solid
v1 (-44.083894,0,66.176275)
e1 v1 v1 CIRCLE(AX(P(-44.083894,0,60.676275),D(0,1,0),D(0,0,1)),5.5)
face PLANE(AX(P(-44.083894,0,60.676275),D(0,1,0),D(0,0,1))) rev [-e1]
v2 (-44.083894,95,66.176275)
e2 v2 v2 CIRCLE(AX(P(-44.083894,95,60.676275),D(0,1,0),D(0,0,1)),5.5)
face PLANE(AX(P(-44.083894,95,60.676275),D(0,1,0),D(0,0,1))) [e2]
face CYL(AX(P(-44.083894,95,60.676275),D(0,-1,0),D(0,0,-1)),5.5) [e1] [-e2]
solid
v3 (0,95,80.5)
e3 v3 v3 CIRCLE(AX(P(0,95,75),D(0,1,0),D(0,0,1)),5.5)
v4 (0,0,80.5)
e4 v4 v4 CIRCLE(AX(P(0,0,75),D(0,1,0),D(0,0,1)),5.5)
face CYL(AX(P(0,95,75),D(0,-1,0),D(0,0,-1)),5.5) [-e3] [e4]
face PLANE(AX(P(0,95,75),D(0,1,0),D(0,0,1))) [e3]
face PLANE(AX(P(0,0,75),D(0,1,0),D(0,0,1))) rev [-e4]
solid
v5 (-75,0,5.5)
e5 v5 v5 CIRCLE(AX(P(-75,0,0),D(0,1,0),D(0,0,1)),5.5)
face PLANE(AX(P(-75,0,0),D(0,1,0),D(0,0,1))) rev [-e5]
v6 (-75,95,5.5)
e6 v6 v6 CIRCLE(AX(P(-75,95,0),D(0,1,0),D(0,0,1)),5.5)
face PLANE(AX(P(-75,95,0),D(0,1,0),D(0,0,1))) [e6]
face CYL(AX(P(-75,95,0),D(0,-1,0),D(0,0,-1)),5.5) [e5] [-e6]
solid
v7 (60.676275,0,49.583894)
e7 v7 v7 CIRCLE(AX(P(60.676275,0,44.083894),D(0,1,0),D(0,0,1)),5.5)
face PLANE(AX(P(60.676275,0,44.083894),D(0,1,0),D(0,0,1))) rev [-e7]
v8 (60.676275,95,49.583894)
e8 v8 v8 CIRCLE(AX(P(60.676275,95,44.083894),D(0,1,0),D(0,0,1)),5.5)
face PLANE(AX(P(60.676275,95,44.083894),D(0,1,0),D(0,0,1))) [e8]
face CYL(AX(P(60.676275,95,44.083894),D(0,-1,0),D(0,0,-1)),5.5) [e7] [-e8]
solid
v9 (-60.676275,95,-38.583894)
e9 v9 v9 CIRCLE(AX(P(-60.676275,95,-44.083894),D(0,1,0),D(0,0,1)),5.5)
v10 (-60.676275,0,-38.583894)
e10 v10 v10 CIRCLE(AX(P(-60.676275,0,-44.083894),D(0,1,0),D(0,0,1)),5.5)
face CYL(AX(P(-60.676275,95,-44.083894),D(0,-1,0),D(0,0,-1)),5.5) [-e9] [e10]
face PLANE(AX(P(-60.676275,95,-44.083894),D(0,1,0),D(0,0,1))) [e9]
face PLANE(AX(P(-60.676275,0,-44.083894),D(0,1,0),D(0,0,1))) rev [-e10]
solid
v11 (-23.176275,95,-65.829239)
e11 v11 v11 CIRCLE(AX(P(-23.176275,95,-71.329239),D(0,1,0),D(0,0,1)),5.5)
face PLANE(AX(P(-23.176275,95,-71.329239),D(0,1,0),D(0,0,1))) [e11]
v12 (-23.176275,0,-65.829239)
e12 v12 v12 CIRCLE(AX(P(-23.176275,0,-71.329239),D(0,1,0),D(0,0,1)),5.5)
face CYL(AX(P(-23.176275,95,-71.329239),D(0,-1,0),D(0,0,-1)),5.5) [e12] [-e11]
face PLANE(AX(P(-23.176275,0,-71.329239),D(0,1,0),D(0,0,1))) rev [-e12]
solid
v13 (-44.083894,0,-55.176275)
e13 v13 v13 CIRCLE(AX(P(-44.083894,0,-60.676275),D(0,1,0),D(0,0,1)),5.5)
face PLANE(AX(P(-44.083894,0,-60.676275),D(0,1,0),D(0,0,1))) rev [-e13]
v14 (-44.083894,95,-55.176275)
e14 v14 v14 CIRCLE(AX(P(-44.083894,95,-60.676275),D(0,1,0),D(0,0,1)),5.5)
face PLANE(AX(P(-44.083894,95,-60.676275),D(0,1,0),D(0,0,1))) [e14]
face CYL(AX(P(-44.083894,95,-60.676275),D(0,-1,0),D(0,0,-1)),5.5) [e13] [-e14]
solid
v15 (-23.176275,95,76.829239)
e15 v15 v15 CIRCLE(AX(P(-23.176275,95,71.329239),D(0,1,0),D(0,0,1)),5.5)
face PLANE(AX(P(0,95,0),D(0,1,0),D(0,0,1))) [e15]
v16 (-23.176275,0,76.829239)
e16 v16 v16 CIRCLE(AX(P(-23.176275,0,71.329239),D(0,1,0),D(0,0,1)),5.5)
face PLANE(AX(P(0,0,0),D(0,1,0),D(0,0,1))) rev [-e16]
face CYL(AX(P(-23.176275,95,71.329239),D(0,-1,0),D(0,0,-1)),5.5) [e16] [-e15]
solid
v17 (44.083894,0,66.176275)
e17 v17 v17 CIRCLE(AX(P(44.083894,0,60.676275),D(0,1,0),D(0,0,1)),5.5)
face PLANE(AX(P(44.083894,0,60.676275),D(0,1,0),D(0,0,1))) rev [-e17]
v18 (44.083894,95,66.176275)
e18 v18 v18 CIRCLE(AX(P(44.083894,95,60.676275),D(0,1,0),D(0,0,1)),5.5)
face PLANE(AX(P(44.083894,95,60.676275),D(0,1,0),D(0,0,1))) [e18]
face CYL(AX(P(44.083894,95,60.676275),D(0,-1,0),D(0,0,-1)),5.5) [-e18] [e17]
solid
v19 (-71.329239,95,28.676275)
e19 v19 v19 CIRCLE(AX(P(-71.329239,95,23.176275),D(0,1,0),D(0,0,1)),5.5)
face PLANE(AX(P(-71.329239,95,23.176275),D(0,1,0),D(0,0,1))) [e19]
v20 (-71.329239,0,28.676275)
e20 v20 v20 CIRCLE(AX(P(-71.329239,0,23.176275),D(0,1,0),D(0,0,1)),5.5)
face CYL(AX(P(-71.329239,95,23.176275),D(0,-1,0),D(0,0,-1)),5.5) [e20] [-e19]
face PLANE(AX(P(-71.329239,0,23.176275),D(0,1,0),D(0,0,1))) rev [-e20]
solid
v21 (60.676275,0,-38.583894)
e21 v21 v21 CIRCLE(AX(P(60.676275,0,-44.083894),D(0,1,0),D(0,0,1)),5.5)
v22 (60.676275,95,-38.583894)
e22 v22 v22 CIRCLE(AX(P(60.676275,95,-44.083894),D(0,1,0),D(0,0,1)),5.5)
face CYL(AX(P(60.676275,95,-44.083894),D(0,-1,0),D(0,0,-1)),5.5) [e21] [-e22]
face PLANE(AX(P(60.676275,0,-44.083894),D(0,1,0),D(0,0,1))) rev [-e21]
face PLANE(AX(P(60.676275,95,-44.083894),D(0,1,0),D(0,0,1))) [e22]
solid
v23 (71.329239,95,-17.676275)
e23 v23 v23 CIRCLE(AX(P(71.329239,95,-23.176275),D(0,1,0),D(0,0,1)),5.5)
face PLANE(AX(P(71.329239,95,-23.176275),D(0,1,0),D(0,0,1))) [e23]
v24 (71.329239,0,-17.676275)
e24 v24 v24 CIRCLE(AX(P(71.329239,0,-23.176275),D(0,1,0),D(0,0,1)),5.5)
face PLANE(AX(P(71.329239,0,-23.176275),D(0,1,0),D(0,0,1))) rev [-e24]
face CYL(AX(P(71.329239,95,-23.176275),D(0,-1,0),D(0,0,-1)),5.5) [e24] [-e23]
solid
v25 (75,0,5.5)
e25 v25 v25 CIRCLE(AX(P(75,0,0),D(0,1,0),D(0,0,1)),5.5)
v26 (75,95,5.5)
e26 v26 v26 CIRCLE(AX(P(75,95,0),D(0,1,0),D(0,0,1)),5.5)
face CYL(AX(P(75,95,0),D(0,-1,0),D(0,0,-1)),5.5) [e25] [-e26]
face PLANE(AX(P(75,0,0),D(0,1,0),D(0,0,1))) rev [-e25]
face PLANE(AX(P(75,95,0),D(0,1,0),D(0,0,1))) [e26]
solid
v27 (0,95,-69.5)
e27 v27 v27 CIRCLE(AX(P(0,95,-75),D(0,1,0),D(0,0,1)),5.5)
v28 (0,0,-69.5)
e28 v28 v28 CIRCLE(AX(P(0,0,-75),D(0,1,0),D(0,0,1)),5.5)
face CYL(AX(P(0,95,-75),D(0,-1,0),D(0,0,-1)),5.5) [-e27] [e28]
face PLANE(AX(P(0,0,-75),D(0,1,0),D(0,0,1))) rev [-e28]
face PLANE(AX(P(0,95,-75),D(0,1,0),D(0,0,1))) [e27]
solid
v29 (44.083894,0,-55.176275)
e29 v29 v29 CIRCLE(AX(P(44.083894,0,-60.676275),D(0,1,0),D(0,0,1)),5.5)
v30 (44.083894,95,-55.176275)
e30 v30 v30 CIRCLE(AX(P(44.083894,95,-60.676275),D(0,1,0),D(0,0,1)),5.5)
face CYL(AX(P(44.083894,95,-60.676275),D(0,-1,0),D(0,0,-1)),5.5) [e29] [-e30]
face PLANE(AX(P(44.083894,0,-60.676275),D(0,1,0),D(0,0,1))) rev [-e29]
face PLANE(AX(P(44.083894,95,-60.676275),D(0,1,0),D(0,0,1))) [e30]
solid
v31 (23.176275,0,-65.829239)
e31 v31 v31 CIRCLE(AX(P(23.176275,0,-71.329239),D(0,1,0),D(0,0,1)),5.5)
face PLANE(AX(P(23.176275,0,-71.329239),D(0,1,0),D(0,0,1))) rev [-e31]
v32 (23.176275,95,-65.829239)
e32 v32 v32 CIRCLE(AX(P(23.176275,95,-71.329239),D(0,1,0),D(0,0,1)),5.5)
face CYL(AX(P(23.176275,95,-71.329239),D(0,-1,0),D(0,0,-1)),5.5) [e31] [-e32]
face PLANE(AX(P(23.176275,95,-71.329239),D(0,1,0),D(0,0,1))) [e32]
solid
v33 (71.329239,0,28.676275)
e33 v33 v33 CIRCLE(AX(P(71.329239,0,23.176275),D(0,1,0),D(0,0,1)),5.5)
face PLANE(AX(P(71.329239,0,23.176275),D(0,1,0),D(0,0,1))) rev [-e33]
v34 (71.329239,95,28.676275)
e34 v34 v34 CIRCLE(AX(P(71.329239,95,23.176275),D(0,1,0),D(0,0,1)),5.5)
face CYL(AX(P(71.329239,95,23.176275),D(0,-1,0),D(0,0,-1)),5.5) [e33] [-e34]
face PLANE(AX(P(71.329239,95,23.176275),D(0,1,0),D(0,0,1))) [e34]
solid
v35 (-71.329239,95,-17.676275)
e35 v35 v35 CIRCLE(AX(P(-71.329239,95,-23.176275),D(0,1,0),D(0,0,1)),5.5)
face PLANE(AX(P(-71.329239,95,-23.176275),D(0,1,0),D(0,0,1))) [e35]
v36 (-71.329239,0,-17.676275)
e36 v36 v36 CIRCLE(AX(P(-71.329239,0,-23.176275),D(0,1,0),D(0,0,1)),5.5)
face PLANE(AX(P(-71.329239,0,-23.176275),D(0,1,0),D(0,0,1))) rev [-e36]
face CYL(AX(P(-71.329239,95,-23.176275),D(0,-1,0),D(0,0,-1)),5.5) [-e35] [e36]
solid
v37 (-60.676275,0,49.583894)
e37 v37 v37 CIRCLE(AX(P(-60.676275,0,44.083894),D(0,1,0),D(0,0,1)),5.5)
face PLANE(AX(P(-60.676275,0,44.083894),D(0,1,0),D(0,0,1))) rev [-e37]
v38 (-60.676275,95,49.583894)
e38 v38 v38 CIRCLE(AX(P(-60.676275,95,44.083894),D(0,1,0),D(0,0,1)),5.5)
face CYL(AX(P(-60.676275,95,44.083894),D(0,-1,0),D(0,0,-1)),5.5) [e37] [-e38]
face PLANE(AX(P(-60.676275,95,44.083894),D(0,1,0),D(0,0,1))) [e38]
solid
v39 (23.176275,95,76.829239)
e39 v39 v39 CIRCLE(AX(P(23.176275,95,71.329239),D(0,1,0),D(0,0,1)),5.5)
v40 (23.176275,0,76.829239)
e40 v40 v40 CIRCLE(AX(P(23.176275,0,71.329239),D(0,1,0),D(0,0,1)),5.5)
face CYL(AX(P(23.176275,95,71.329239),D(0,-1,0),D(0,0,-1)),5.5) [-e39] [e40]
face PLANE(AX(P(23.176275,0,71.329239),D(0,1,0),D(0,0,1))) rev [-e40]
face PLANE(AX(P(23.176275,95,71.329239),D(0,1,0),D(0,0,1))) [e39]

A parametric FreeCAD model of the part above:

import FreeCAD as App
import Part
import Sketcher
from FreeCAD import Vector
Q = App.Units.Quantity

doc = App.newDocument("Part")
body = doc.addObject("PartDesign::Body", "Body")

sketch1 = doc.addObject("Sketcher::SketchObject", "Sketch")
body.addObject(sketch1)
sketch1.AttachmentSupport = (doc.XZ_Plane, [""])
sketch1.MapMode = "FlatFace"
sketch1.addGeometry(Part.Circle(Vector(-75, 0, 0), Vector(0, 0, 1), 6), False)
sketch1.addConstraint([
    Sketcher.Constraint("PointOnObject", 0, 3, -1),
    Sketcher.Constraint("Diameter", 0, Q("11 mm")),
    Sketcher.Constraint("DistanceX", 0, 3, -1, 1, Q("75 mm")),
])
pad1 = doc.addObject("PartDesign::Pad", "Pad")
body.addObject(pad1)
pad1.Profile = sketch1
pad1.Length = 95
pad1.Reversed = True
body2 = doc.addObject("PartDesign::Body", "Body001")

sketch2 = doc.addObject("Sketcher::SketchObject", "Sketch001")
body2.addObject(sketch2)
sketch2.AttachmentSupport = (doc.getObject("XZ_Plane001"), [""])
sketch2.MapMode = "FlatFace"
sketch2.addGeometry(Part.Circle(Vector(-71, -23, 0), Vector(0, 0, 1), 6), False)
sketch2.addConstraint([
    Sketcher.Constraint("Diameter", 0, Q("11 mm")),
    Sketcher.Constraint("DistanceX", 0, 3, -1, 1, Q("71.329239 mm")),
    Sketcher.Constraint("DistanceY", 0, 3, -1, 1, Q("23.176275 mm")),
])
pad2 = doc.addObject("PartDesign::Pad", "Pad001")
body2.addObject(pad2)
pad2.Profile = sketch2
pad2.Length = 95
pad2.Reversed = True
body3 = doc.addObject("PartDesign::Body", "Body002")

sketch3 = doc.addObject("Sketcher::SketchObject", "Sketch002")
body3.addObject(sketch3)
sketch3.AttachmentSupport = (doc.getObject("XZ_Plane002"), [""])
sketch3.MapMode = "FlatFace"
sketch3.addGeometry(Part.Circle(Vector(-61, -44, 0), Vector(0, 0, 1), 6), False)
sketch3.addConstraint([
    Sketcher.Constraint("Diameter", 0, Q("11 mm")),
    Sketcher.Constraint("DistanceX", 0, 3, -1, 1, Q("60.676275 mm")),
    Sketcher.Constraint("DistanceY", 0, 3, -1, 1, Q("44.083894 mm")),
])
pad3 = doc.addObject("PartDesign::Pad", "Pad002")
body3.addObject(pad3)
pad3.Profile = sketch3
pad3.Length = 95
pad3.Reversed = True
body4 = doc.addObject("PartDesign::Body", "Body003")

sketch4 = doc.addObject("Sketcher::SketchObject", "Sketch003")
body4.addObject(sketch4)
sketch4.AttachmentSupport = (doc.getObject("XZ_Plane003"), [""])
sketch4.MapMode = "FlatFace"
sketch4.addGeometry(Part.Circle(Vector(-44, -61, 0), Vector(0, 0, 1), 6), False)
sketch4.addConstraint([
    Sketcher.Constraint("Diameter", 0, Q("11 mm")),
    Sketcher.Constraint("DistanceX", 0, 3, -1, 1, Q("44.083894 mm")),
    Sketcher.Constraint("DistanceY", 0, 3, -1, 1, Q("60.676275 mm")),
])
pad4 = doc.addObject("PartDesign::Pad", "Pad003")
body4.addObject(pad4)
pad4.Profile = sketch4
pad4.Length = 95
pad4.Reversed = True
body5 = doc.addObject("PartDesign::Body", "Body004")

sketch5 = doc.addObject("Sketcher::SketchObject", "Sketch004")
body5.addObject(sketch5)
sketch5.AttachmentSupport = (doc.getObject("XZ_Plane004"), [""])
sketch5.MapMode = "FlatFace"
sketch5.addGeometry(Part.Circle(Vector(-23, -71, 0), Vector(0, 0, 1), 6), False)
sketch5.addConstraint([
    Sketcher.Constraint("Diameter", 0, Q("11 mm")),
    Sketcher.Constraint("DistanceY", 0, 3, -1, 1, Q("71.329239 mm")),
    Sketcher.Constraint("DistanceX", 0, 3, -1, 1, Q("23.176275 mm")),
])
pad5 = doc.addObject("PartDesign::Pad", "Pad004")
body5.addObject(pad5)
pad5.Profile = sketch5
pad5.Length = 95
pad5.Reversed = True
body6 = doc.addObject("PartDesign::Body", "Body005")

sketch6 = doc.addObject("Sketcher::SketchObject", "Sketch005")
body6.addObject(sketch6)
sketch6.AttachmentSupport = (doc.getObject("XZ_Plane005"), [""])
sketch6.MapMode = "FlatFace"
sketch6.addGeometry(Part.Circle(Vector(0, -75, 0), Vector(0, 0, 1), 6), False)
sketch6.addConstraint([
    Sketcher.Constraint("PointOnObject", 0, 3, -2),
    Sketcher.Constraint("Diameter", 0, Q("11 mm")),
    Sketcher.Constraint("DistanceY", 0, 3, -1, 1, Q("75 mm")),
])
pad6 = doc.addObject("PartDesign::Pad", "Pad005")
body6.addObject(pad6)
pad6.Profile = sketch6
pad6.Length = 95
pad6.Reversed = True
body7 = doc.addObject("PartDesign::Body", "Body006")

sketch7 = doc.addObject("Sketcher::SketchObject", "Sketch006")
body7.addObject(sketch7)
sketch7.AttachmentSupport = (doc.getObject("XZ_Plane006"), [""])
sketch7.MapMode = "FlatFace"
sketch7.addGeometry(Part.Circle(Vector(23, -71, 0), Vector(0, 0, 1), 6), False)
sketch7.addConstraint([
    Sketcher.Constraint("Diameter", 0, Q("11 mm")),
    Sketcher.Constraint("DistanceY", 0, 3, -1, 1, Q("71.329239 mm")),
    Sketcher.Constraint("DistanceX", -1, 1, 0, 3, Q("23.176275 mm")),
])
pad7 = doc.addObject("PartDesign::Pad", "Pad006")
body7.addObject(pad7)
pad7.Profile = sketch7
pad7.Length = 95
pad7.Reversed = True
body8 = doc.addObject("PartDesign::Body", "Body007")

sketch8 = doc.addObject("Sketcher::SketchObject", "Sketch007")
body8.addObject(sketch8)
sketch8.AttachmentSupport = (doc.getObject("XZ_Plane007"), [""])
sketch8.MapMode = "FlatFace"
sketch8.addGeometry(Part.Circle(Vector(44, -61, 0), Vector(0, 0, 1), 6), False)
sketch8.addConstraint([
    Sketcher.Constraint("Diameter", 0, Q("11 mm")),
    Sketcher.Constraint("DistanceX", -1, 1, 0, 3, Q("44.083894 mm")),
    Sketcher.Constraint("DistanceY", 0, 3, -1, 1, Q("60.676275 mm")),
])
pad8 = doc.addObject("PartDesign::Pad", "Pad007")
body8.addObject(pad8)
pad8.Profile = sketch8
pad8.Length = 95
pad8.Reversed = True
body9 = doc.addObject("PartDesign::Body", "Body008")

sketch9 = doc.addObject("Sketcher::SketchObject", "Sketch008")
body9.addObject(sketch9)
sketch9.AttachmentSupport = (doc.getObject("XZ_Plane008"), [""])
sketch9.MapMode = "FlatFace"
sketch9.addGeometry(Part.Circle(Vector(61, -44, 0), Vector(0, 0, 1), 6), False)
sketch9.addConstraint([
    Sketcher.Constraint("Diameter", 0, Q("11 mm")),
    Sketcher.Constraint("DistanceX", -1, 1, 0, 3, Q("60.676275 mm")),
    Sketcher.Constraint("DistanceY", 0, 3, -1, 1, Q("44.083894 mm")),
])
pad9 = doc.addObject("PartDesign::Pad", "Pad008")
body9.addObject(pad9)
pad9.Profile = sketch9
pad9.Length = 95
pad9.Reversed = True
body10 = doc.addObject("PartDesign::Body", "Body009")

sketch10 = doc.addObject("Sketcher::SketchObject", "Sketch009")
body10.addObject(sketch10)
sketch10.AttachmentSupport = (doc.getObject("XZ_Plane009"), [""])
sketch10.MapMode = "FlatFace"
sketch10.addGeometry(Part.Circle(Vector(71, -23, 0), Vector(0, 0, 1), 6), False)
sketch10.addConstraint([
    Sketcher.Constraint("Diameter", 0, Q("11 mm")),
    Sketcher.Constraint("DistanceX", -1, 1, 0, 3, Q("71.329239 mm")),
    Sketcher.Constraint("DistanceY", 0, 3, -1, 1, Q("23.176275 mm")),
])
pad10 = doc.addObject("PartDesign::Pad", "Pad009")
body10.addObject(pad10)
pad10.Profile = sketch10
pad10.Length = 95
pad10.Reversed = True
body11 = doc.addObject("PartDesign::Body", "Body010")

sketch11 = doc.addObject("Sketcher::SketchObject", "Sketch010")
body11.addObject(sketch11)
sketch11.AttachmentSupport = (doc.getObject("XZ_Plane010"), [""])
sketch11.MapMode = "FlatFace"
sketch11.addGeometry(Part.Circle(Vector(75, 0, 0), Vector(0, 0, 1), 6), False)
sketch11.addConstraint([
    Sketcher.Constraint("PointOnObject", 0, 3, -1),
    Sketcher.Constraint("Diameter", 0, Q("11 mm")),
    Sketcher.Constraint("DistanceX", -1, 1, 0, 3, Q("75 mm")),
])
pad11 = doc.addObject("PartDesign::Pad", "Pad010")
body11.addObject(pad11)
pad11.Profile = sketch11
pad11.Length = 95
pad11.Reversed = True
body12 = doc.addObject("PartDesign::Body", "Body011")

sketch12 = doc.addObject("Sketcher::SketchObject", "Sketch011")
body12.addObject(sketch12)
sketch12.AttachmentSupport = (doc.getObject("XZ_Plane011"), [""])
sketch12.MapMode = "FlatFace"
sketch12.addGeometry(Part.Circle(Vector(71, 23, 0), Vector(0, 0, 1), 6), False)
sketch12.addConstraint([
    Sketcher.Constraint("Diameter", 0, Q("11 mm")),
    Sketcher.Constraint("DistanceX", -1, 1, 0, 3, Q("71.329239 mm")),
    Sketcher.Constraint("DistanceY", -1, 1, 0, 3, Q("23.176275 mm")),
])
pad12 = doc.addObject("PartDesign::Pad", "Pad011")
body12.addObject(pad12)
pad12.Profile = sketch12
pad12.Length = 95
pad12.Reversed = True
body13 = doc.addObject("PartDesign::Body", "Body012")

sketch13 = doc.addObject("Sketcher::SketchObject", "Sketch012")
body13.addObject(sketch13)
sketch13.AttachmentSupport = (doc.getObject("XZ_Plane012"), [""])
sketch13.MapMode = "FlatFace"
sketch13.addGeometry(Part.Circle(Vector(61, 44, 0), Vector(0, 0, 1), 6), False)
sketch13.addConstraint([
    Sketcher.Constraint("Diameter", 0, Q("11 mm")),
    Sketcher.Constraint("DistanceX", -1, 1, 0, 3, Q("60.676275 mm")),
    Sketcher.Constraint("DistanceY", -1, 1, 0, 3, Q("44.083894 mm")),
])
pad13 = doc.addObject("PartDesign::Pad", "Pad012")
body13.addObject(pad13)
pad13.Profile = sketch13
pad13.Length = 95
pad13.Reversed = True
body14 = doc.addObject("PartDesign::Body", "Body013")

sketch14 = doc.addObject("Sketcher::SketchObject", "Sketch013")
body14.addObject(sketch14)
sketch14.AttachmentSupport = (doc.getObject("XZ_Plane013"), [""])
sketch14.MapMode = "FlatFace"
sketch14.addGeometry(Part.Circle(Vector(44, 61, 0), Vector(0, 0, 1), 6), False)
sketch14.addConstraint([
    Sketcher.Constraint("Diameter", 0, Q("11 mm")),
    Sketcher.Constraint("DistanceX", -1, 1, 0, 3, Q("44.083894 mm")),
    Sketcher.Constraint("DistanceY", -1, 1, 0, 3, Q("60.676275 mm")),
])
pad14 = doc.addObject("PartDesign::Pad", "Pad013")
body14.addObject(pad14)
pad14.Profile = sketch14
pad14.Length = 95
pad14.Reversed = True
body15 = doc.addObject("PartDesign::Body", "Body014")

sketch15 = doc.addObject("Sketcher::SketchObject", "Sketch014")
body15.addObject(sketch15)
sketch15.AttachmentSupport = (doc.getObject("XZ_Plane014"), [""])
sketch15.MapMode = "FlatFace"
sketch15.addGeometry(Part.Circle(Vector(23, 71, 0), Vector(0, 0, 1), 6), False)
sketch15.addConstraint([
    Sketcher.Constraint("Diameter", 0, Q("11 mm")),
    Sketcher.Constraint("DistanceY", -1, 1, 0, 3, Q("71.329239 mm")),
    Sketcher.Constraint("DistanceX", -1, 1, 0, 3, Q("23.176275 mm")),
])
pad15 = doc.addObject("PartDesign::Pad", "Pad014")
body15.addObject(pad15)
pad15.Profile = sketch15
pad15.Length = 95
pad15.Reversed = True
body16 = doc.addObject("PartDesign::Body", "Body015")

sketch16 = doc.addObject("Sketcher::SketchObject", "Sketch015")
body16.addObject(sketch16)
sketch16.AttachmentSupport = (doc.getObject("XZ_Plane015"), [""])
sketch16.MapMode = "FlatFace"
sketch16.addGeometry(Part.Circle(Vector(0, 75, 0), Vector(0, 0, 1), 6), False)
sketch16.addConstraint([
    Sketcher.Constraint("PointOnObject", 0, 3, -2),
    Sketcher.Constraint("Diameter", 0, Q("11 mm")),
    Sketcher.Constraint("DistanceY", -1, 1, 0, 3, Q("75 mm")),
])
pad16 = doc.addObject("PartDesign::Pad", "Pad015")
body16.addObject(pad16)
pad16.Profile = sketch16
pad16.Length = 95
pad16.Reversed = True
body17 = doc.addObject("PartDesign::Body", "Body016")

sketch17 = doc.addObject("Sketcher::SketchObject", "Sketch016")
body17.addObject(sketch17)
sketch17.AttachmentSupport = (doc.getObject("XZ_Plane016"), [""])
sketch17.MapMode = "FlatFace"
sketch17.addGeometry(Part.Circle(Vector(-23, 71, 0), Vector(0, 0, 1), 6), False)
sketch17.addConstraint([
    Sketcher.Constraint("Diameter", 0, Q("11 mm")),
    Sketcher.Constraint("DistanceY", -1, 1, 0, 3, Q("71.329239 mm")),
    Sketcher.Constraint("DistanceX", 0, 3, -1, 1, Q("23.176275 mm")),
])
pad17 = doc.addObject("PartDesign::Pad", "Pad016")
body17.addObject(pad17)
pad17.Profile = sketch17
pad17.Length = 95
pad17.Reversed = True
body18 = doc.addObject("PartDesign::Body", "Body017")

sketch18 = doc.addObject("Sketcher::SketchObject", "Sketch017")
body18.addObject(sketch18)
sketch18.AttachmentSupport = (doc.getObject("XZ_Plane017"), [""])
sketch18.MapMode = "FlatFace"
sketch18.addGeometry(Part.Circle(Vector(-44, 61, 0), Vector(0, 0, 1), 6), False)
sketch18.addConstraint([
    Sketcher.Constraint("Diameter", 0, Q("11 mm")),
    Sketcher.Constraint("DistanceX", 0, 3, -1, 1, Q("44.083894 mm")),
    Sketcher.Constraint("DistanceY", -1, 1, 0, 3, Q("60.676275 mm")),
])
pad18 = doc.addObject("PartDesign::Pad", "Pad017")
body18.addObject(pad18)
pad18.Profile = sketch18
pad18.Length = 95
pad18.Reversed = True
body19 = doc.addObject("PartDesign::Body", "Body018")

sketch19 = doc.addObject("Sketcher::SketchObject", "Sketch018")
body19.addObject(sketch19)
sketch19.AttachmentSupport = (doc.getObject("XZ_Plane018"), [""])
sketch19.MapMode = "FlatFace"
sketch19.addGeometry(Part.Circle(Vector(-61, 44, 0), Vector(0, 0, 1), 6), False)
sketch19.addConstraint([
    Sketcher.Constraint("Diameter", 0, Q("11 mm")),
    Sketcher.Constraint("DistanceX", 0, 3, -1, 1, Q("60.676275 mm")),
    Sketcher.Constraint("DistanceY", -1, 1, 0, 3, Q("44.083894 mm")),
])
pad19 = doc.addObject("PartDesign::Pad", "Pad018")
body19.addObject(pad19)
pad19.Profile = sketch19
pad19.Length = 95
pad19.Reversed = True
body20 = doc.addObject("PartDesign::Body", "Body019")

sketch20 = doc.addObject("Sketcher::SketchObject", "Sketch019")
body20.addObject(sketch20)
sketch20.AttachmentSupport = (doc.getObject("XZ_Plane019"), [""])
sketch20.MapMode = "FlatFace"
sketch20.addGeometry(Part.Circle(Vector(-71, 23, 0), Vector(0, 0, 1), 6), False)
sketch20.addConstraint([
    Sketcher.Constraint("Diameter", 0, Q("11 mm")),
    Sketcher.Constraint("DistanceX", 0, 3, -1, 1, Q("71.329239 mm")),
    Sketcher.Constraint("DistanceY", -1, 1, 0, 3, Q("23.176275 mm")),
])
pad20 = doc.addObject("PartDesign::Pad", "Pad019")
body20.addObject(pad20)
pad20.Profile = sketch20
pad20.Length = 95
pad20.Reversed = True

doc.recompute()
